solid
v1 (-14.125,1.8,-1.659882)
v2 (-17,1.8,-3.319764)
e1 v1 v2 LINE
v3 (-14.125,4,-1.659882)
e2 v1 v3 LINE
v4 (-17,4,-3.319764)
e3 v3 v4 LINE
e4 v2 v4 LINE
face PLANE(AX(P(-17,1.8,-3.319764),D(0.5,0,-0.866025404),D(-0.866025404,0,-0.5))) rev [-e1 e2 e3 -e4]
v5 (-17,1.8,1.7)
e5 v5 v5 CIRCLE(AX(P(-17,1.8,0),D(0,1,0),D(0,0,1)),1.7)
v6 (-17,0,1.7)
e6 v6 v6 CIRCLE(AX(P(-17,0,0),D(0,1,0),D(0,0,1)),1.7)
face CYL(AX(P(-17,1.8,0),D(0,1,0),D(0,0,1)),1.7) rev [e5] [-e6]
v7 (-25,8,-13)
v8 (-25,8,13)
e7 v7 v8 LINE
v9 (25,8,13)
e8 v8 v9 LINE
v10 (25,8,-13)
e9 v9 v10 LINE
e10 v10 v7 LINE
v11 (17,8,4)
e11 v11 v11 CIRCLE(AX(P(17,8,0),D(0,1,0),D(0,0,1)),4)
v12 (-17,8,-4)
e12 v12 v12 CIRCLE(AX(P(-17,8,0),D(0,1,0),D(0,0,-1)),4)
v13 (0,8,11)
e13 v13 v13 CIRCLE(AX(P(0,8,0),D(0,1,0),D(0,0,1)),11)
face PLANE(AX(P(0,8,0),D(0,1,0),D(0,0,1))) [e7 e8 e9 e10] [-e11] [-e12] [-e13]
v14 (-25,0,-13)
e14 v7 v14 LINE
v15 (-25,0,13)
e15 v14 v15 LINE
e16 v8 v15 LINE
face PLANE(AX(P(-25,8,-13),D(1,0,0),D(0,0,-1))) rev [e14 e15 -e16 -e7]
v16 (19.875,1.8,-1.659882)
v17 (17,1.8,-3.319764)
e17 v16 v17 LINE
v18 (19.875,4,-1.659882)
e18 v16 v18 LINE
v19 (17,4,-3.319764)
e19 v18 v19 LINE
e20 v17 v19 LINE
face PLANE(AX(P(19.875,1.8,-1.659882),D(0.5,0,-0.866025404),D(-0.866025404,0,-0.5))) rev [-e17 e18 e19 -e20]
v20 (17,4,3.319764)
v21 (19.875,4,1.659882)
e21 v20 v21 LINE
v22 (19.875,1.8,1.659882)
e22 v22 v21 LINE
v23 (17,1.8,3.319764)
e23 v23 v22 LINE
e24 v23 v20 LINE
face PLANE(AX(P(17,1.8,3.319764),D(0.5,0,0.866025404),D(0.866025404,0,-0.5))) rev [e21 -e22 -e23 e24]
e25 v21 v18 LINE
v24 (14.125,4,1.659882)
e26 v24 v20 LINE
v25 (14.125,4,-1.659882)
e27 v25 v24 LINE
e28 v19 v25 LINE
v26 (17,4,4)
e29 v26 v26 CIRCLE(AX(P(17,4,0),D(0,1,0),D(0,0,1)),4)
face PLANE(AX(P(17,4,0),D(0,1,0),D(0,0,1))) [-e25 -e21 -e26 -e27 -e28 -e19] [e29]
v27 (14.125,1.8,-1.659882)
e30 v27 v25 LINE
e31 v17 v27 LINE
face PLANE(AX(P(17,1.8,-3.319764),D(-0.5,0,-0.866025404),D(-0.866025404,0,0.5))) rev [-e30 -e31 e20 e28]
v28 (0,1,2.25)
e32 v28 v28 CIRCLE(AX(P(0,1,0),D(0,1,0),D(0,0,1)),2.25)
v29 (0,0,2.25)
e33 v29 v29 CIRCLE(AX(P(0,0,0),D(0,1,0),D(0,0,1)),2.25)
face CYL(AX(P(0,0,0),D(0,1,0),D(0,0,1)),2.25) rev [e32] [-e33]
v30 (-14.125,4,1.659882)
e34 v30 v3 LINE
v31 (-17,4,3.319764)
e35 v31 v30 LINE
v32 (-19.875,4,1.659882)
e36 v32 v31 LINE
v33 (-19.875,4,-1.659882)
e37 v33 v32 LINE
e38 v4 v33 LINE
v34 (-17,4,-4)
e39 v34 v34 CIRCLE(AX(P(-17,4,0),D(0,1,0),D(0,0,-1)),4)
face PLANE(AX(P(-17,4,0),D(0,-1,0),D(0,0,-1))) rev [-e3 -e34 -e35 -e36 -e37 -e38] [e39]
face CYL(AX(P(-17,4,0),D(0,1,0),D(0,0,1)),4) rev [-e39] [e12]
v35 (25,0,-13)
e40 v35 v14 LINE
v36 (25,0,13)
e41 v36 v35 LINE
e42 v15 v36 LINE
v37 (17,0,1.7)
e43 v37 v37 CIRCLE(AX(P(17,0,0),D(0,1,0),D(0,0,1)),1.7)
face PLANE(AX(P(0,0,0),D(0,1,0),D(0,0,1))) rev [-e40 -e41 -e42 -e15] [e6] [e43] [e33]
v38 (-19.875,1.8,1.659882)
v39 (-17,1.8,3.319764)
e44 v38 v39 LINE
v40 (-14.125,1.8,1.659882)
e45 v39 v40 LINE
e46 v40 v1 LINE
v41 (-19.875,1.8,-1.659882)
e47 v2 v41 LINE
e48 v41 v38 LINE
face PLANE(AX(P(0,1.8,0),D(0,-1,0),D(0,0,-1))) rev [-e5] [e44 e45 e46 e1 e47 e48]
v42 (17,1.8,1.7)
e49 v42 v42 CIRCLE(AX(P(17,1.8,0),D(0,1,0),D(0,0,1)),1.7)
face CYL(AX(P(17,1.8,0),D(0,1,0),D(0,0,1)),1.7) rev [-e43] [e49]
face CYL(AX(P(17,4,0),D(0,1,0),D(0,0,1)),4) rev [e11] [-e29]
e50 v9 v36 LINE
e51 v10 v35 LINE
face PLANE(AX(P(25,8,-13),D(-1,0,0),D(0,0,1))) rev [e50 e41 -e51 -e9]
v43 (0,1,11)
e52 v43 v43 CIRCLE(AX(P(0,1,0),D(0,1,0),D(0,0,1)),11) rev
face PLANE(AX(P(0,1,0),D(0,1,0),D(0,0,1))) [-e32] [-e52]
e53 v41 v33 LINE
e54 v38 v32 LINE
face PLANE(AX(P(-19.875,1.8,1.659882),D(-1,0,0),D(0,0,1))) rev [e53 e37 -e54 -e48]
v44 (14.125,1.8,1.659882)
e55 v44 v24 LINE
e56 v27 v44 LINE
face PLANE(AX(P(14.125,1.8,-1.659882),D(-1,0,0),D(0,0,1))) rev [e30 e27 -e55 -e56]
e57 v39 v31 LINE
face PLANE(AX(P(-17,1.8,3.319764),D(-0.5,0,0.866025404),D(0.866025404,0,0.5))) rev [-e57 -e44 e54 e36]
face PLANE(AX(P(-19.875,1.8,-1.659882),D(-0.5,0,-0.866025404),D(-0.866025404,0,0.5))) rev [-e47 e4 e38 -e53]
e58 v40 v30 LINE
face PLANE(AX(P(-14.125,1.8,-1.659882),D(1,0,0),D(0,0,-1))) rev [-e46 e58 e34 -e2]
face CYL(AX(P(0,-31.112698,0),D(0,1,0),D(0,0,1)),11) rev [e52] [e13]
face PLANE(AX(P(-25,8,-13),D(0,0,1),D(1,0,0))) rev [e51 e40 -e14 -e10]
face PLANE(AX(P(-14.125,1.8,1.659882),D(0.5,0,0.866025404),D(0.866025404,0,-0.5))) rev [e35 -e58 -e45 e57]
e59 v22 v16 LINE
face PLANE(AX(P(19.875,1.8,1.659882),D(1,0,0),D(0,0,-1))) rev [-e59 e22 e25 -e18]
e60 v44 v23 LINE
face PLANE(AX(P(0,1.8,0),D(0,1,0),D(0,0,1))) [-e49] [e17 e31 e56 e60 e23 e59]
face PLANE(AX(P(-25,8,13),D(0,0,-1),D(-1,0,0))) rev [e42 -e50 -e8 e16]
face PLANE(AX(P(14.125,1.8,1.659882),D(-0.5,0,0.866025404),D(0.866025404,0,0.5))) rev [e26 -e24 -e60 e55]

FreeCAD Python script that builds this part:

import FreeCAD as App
import Part
import Sketcher
from FreeCAD import Vector
Q = App.Units.Quantity

doc = App.newDocument("Part")
body = doc.addObject("PartDesign::Body", "Body")

sketch1 = body.newObject("Sketcher::SketchObject", "Sketch")
sketch1.AttachmentSupport = (doc.getObject("XZ_Plane"), [""])
sketch1.MapMode = "FlatFace"
sketch1.addGeometry([
    Part.LineSegment(Vector(-25, -13, 0), Vector(-25, 13, 0)),
    Part.LineSegment(Vector(-25, 13, 0), Vector(25, 13, 0)),
    Part.LineSegment(Vector(25, 13, 0), Vector(25, -13, 0)),
    Part.LineSegment(Vector(25, -13, 0), Vector(-25, -13, 0)),
], False)
sketch1.addConstraint([
    Sketcher.Constraint("Coincident", 0, 2, 1, 1),
    Sketcher.Constraint("Coincident", 1, 2, 2, 1),
    Sketcher.Constraint("Coincident", 2, 2, 3, 1),
    Sketcher.Constraint("Coincident", 3, 2, 0, 1),
    Sketcher.Constraint("Vertical", 0),
    Sketcher.Constraint("Horizontal", 1),
    Sketcher.Constraint("Vertical", 2),
    Sketcher.Constraint("Horizontal", 3),
    Sketcher.Constraint("Symmetric", 0, 2, 2, 2, -1, 1),
    Sketcher.Constraint("DistanceX", 1, 1, 1, 2, 50.0),
    Sketcher.Constraint("DistanceY", 0, 1, 0, 2, 26.0),
])
pad1 = body.newObject("PartDesign::Pad", "Pad")
pad1.Profile = sketch1
pad1.Length = 8
pad1.Reversed = True

sketch2 = body.newObject("Sketcher::SketchObject", "Sketch001")
sketch2.AttachmentSupport = (doc.getObject("XZ_Plane"), [""])
sketch2.MapMode = "FlatFace"
sketch2.AttachmentOffset = App.Placement(Vector(0, 0, -8), App.Rotation())
sketch2.addGeometry(Part.Circle(Vector(0, 0, 0), Vector(0, 0, 1), 11), False)
sketch2.addConstraint([
    Sketcher.Constraint("Coincident", 0, 3, -1, 1),
    Sketcher.Constraint("Diameter", 0, 22.0),
])
pocket1 = body.newObject("PartDesign::Pocket", "Pocket")
pocket1.Profile = sketch2
pocket1.Length = 7
pocket1.Reversed = True

sketch3 = body.newObject("Sketcher::SketchObject", "Sketch002")
sketch3.AttachmentSupport = (doc.getObject("XZ_Plane"), [""])
sketch3.MapMode = "FlatFace"
sketch3.AttachmentOffset = App.Placement(Vector(0, 0, -1), App.Rotation())
sketch3.addGeometry(Part.Circle(Vector(0, 0, 0), Vector(0, 0, 1), 2.25), False)
sketch3.addConstraint([
    Sketcher.Constraint("Coincident", 0, 3, -1, 1),
    Sketcher.Constraint("Diameter", 0, 4.5),
])
pocket2 = body.newObject("PartDesign::Pocket", "Pocket001")
pocket2.Profile = sketch3
pocket2.Type = "ThroughAll"
pocket2.Reversed = True

sketch4 = body.newObject("Sketcher::SketchObject", "Sketch003")
sketch4.AttachmentSupport = (doc.getObject("XZ_Plane"), [""])
sketch4.MapMode = "FlatFace"
sketch4.AttachmentOffset = App.Placement(Vector(0, 0, -8), App.Rotation())
sketch4.addGeometry([
    Part.Circle(Vector(17, 0, 0), Vector(0, 0, 1), 4),
    Part.Circle(Vector(-17, 0, 0), Vector(0, 0, 1), 4),
], False)
sketch4.addConstraint([
    Sketcher.Constraint("Equal", 0, 1),
    Sketcher.Constraint("Symmetric", 0, 3, 1, 3, -1, 1),
    Sketcher.Constraint("PointOnObject", 0, 3, -1),
    Sketcher.Constraint("Diameter", 0, 8.0),
    Sketcher.Constraint("DistanceX", -1, 1, 0, 3, 17.0),
])
pocket3 = body.newObject("PartDesign::Pocket", "Pocket002")
pocket3.Profile = sketch4
pocket3.Length = 4
pocket3.Reversed = True

sketch5 = body.newObject("Sketcher::SketchObject", "Sketch004")
sketch5.AttachmentSupport = (doc.getObject("XZ_Plane"), [""])
sketch5.MapMode = "FlatFace"
sketch5.AttachmentOffset = App.Placement(Vector(0, 0, -4), App.Rotation())
sketch5.addGeometry([
    Part.LineSegment(Vector(19.875, 1.659882, 0), Vector(19.875, -1.659882, 0)),
    Part.LineSegment(Vector(19.875, -1.659882, 0), Vector(17, -3.319764, 0)),
    Part.LineSegment(Vector(17, -3.319764, 0), Vector(14.125, -1.659882, 0)),
    Part.LineSegment(Vector(14.125, -1.659882, 0), Vector(14.125, 1.659882, 0)),
    Part.LineSegment(Vector(14.125, 1.659882, 0), Vector(17, 3.319764, 0)),
    Part.LineSegment(Vector(17, 3.319764, 0), Vector(19.875, 1.659882, 0)),
    Part.LineSegment(Vector(-19.875, 1.659882, 0), Vector(-17, 3.319764, 0)),
    Part.LineSegment(Vector(-17, 3.319764, 0), Vector(-14.125, 1.659882, 0)),
    Part.LineSegment(Vector(-14.125, 1.659882, 0), Vector(-14.125, -1.659882, 0)),
    Part.LineSegment(Vector(-14.125, -1.659882, 0), Vector(-17, -3.319764, 0)),
    Part.LineSegment(Vector(-17, -3.319764, 0), Vector(-19.875, -1.659882, 0)),
    Part.LineSegment(Vector(-19.875, -1.659882, 0), Vector(-19.875, 1.659882, 0)),
], False)
sketch5.addConstraint([
    Sketcher.Constraint("Coincident", 0, 2, 1, 1),
    Sketcher.Constraint("Coincident", 1, 2, 2, 1),
    Sketcher.Constraint("Coincident", 2, 2, 3, 1),
    Sketcher.Constraint("Coincident", 3, 2, 4, 1),
    Sketcher.Constraint("Coincident", 4, 2, 5, 1),
    Sketcher.Constraint("Coincident", 5, 2, 0, 1),
    Sketcher.Constraint("Coincident", 6, 2, 7, 1),
    Sketcher.Constraint("Coincident", 7, 2, 8, 1),
    Sketcher.Constraint("Coincident", 8, 2, 9, 1),
    Sketcher.Constraint("Coincident", 9, 2, 10, 1),
    Sketcher.Constraint("Coincident", 10, 2, 11, 1),
    Sketcher.Constraint("Coincident", 11, 2, 6, 1),
    Sketcher.Constraint("Vertical", 0),
    Sketcher.Constraint("Vertical", 3),
    Sketcher.Constraint("Vertical", 8),
    Sketcher.Constraint("Vertical", 11),
    Sketcher.Constraint("Symmetric", 1, 2, 6, 2, -1, 1),
    Sketcher.Constraint("Symmetric", 2, 2, 7, 2, -1, 1),
    Sketcher.Constraint("Symmetric", 4, 2, 9, 2, -1, 1),
    Sketcher.Constraint("Symmetric", 5, 2, 10, 2, -1, 1),
    Sketcher.Constraint("Symmetric", 4, 2, 6, 2, -2),
    Sketcher.Constraint("Parallel", 1, 4),
    Sketcher.Constraint("Parallel", 2, 5),
    Sketcher.Constraint("Parallel", 4, 6),
    Sketcher.Constraint("Parallel", 6, 9),
    Sketcher.Constraint("Horizontal", 0, 2, 2, 2),
    Sketcher.Constraint("Horizontal", 3, 2, 5, 2),
    Sketcher.Constraint("Angle", 1, Q("-150 deg")),
    Sketcher.Constraint("DistanceX", -1, 1, 1, 2, 17.0),
    Sketcher.Constraint("DistanceX", 2, 2, 0, 2, 5.75),
    Sketcher.Constraint("DistanceY", 0, 2, 0, 1, 3.319764),
])
pocket4 = body.newObject("PartDesign::Pocket", "Pocket003")
pocket4.Profile = sketch5
pocket4.Length = 2.2
pocket4.Reversed = True

sketch6 = body.newObject("Sketcher::SketchObject", "Sketch005")
sketch6.AttachmentSupport = (doc.getObject("XZ_Plane"), [""])
sketch6.MapMode = "FlatFace"
sketch6.AttachmentOffset = App.Placement(Vector(0, 0, -1.8), App.Rotation())
sketch6.addGeometry([
    Part.Circle(Vector(17, 0, 0), Vector(0, 0, 1), 1.7),
    Part.Circle(Vector(-17, 0, 0), Vector(0, 0, 1), 1.7),
], False)
sketch6.addConstraint([
    Sketcher.Constraint("Equal", 0, 1),
    Sketcher.Constraint("Symmetric", 0, 3, 1, 3, -1, 1),
    Sketcher.Constraint("PointOnObject", 0, 3, -1),
    Sketcher.Constraint("Diameter", 0, 3.4),
    Sketcher.Constraint("DistanceX", -1, 1, 0, 3, 17.0),
])
doc.recompute()
hole = body.newObject("PartDesign::Hole", "Hole")
hole.Profile = sketch6
hole.ThreadType = "None"
hole.Diameter = 3.4
hole.DepthType = "Dimension"
hole.Depth = 1.8
hole.DrillPoint = "Flat"
hole.Reversed = True

doc.recompute()
